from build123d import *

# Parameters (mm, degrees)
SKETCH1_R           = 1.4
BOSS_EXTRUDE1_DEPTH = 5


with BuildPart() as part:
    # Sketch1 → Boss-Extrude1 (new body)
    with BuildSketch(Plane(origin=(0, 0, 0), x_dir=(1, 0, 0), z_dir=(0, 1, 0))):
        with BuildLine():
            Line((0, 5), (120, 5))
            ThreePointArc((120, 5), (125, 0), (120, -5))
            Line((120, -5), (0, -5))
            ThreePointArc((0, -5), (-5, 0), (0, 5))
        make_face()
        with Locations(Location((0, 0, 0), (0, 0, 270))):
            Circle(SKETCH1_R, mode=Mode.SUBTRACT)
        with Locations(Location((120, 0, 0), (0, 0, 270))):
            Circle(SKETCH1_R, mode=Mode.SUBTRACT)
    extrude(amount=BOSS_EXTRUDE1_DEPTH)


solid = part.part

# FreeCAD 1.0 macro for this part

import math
import FreeCAD as App
import Part
import Sketcher
Q = App.Units.Quantity

doc = App.newDocument("Part")
params = doc.addObject("Spreadsheet::Sheet", "Params")
for row, (alias, value) in enumerate([
    ("sketch1_radius", "5 mm"),
    ("sketch1_diameter", "2.8 mm"),
    ("sketch1_width", "120 mm"),
    ("pad1_length", "5 mm"),
], start=1):
    params.set(f"A{row}", alias)
    params.set(f"B{row}", "=" + value)
    params.setAlias(f"B{row}", alias)

body = doc.addObject("PartDesign::Body", "Body")

# Sketch on XZ plane
sketch1 = doc.addObject("Sketcher::SketchObject", "Sketch")
body.addObject(sketch1)
sketch1.AttachmentSupport = (doc.XZ_Plane, [""])
sketch1.MapMode = "FlatFace"
sketch1.addGeometry([
    Part.LineSegment(App.Vector(120, -5, 0), App.Vector(0, -5, 0)),  # 0
    Part.ArcOfCircle(Part.Circle(App.Vector(0, 0, 0), App.Vector(0, 0, 1), 5), math.radians(90), math.radians(270)),  # 1
    Part.LineSegment(App.Vector(0, 5, 0), App.Vector(120, 5, 0)),  # 2
    Part.ArcOfCircle(Part.Circle(App.Vector(120, 0, 0), App.Vector(0, 0, 1), 5), math.radians(-90), math.radians(90)),  # 3
    Part.Circle(App.Vector(120, 0, 0), App.Vector(0, 0, 1), 1.4),  # 4
    Part.Circle(App.Vector(0, 0, 0), App.Vector(0, 0, 1), 1.4),  # 5
], False)
sketch1.addConstraint([
    Sketcher.Constraint("Tangent", 0, 2, 1, 2),
    Sketcher.Constraint("Tangent", 1, 1, 2, 1),
    Sketcher.Constraint("Tangent", 2, 2, 3, 2),
    Sketcher.Constraint("Tangent", 3, 1, 0, 1),
    Sketcher.Constraint("Horizontal", 0),
    Sketcher.Constraint("Horizontal", 2),
    Sketcher.Constraint("Coincident", 1, 3, -1, 1),
    Sketcher.Constraint("Coincident", 5, 3, -1, 1),
    Sketcher.Constraint("Coincident", 4, 3, 3, 3),
    Sketcher.Constraint("Equal", 4, 5),
    Sketcher.Constraint("Radius", 1, Q("5 mm")),
    Sketcher.Constraint("Diameter", 4, Q("2.8 mm")),
    Sketcher.Constraint("DistanceX", 0, 2, 0, 1, Q("120 mm")),
])
sketch1.setExpression("Constraints[10]", "Params.sketch1_radius")
sketch1.setExpression("Constraints[11]", "Params.sketch1_diameter")
sketch1.setExpression("Constraints[12]", "Params.sketch1_width")
pad1 = doc.addObject("PartDesign::Pad", "Pad")
body.addObject(pad1)
pad1.Profile = sketch1
pad1.setExpression("Length", "Params.pad1_length")
pad1.Reversed = True

doc.recompute()
